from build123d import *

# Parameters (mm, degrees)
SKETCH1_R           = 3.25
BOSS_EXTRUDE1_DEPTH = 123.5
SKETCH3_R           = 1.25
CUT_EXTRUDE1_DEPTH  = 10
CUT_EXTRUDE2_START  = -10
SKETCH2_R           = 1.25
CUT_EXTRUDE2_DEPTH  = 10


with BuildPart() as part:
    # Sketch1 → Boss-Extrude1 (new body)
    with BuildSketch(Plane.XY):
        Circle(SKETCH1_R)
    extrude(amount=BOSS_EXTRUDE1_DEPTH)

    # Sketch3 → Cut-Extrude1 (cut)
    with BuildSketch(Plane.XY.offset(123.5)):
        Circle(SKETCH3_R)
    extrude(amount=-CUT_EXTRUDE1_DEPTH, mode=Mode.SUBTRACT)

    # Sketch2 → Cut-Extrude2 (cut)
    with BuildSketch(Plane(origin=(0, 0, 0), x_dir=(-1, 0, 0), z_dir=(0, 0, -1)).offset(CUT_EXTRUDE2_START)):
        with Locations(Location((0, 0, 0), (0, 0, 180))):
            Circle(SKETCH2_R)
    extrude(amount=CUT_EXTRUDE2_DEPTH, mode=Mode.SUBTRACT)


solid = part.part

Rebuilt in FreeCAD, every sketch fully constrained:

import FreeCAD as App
import Part
import Sketcher

doc = App.newDocument("Part")
body = doc.addObject("PartDesign::Body", "Body")

# Sketch on XY plane
sketch1 = doc.addObject("Sketcher::SketchObject", "Sketch")
body.addObject(sketch1)
sketch1.AttachmentSupport = (doc.XY_Plane, [""])
sketch1.MapMode = "FlatFace"
sketch1.addGeometry(Part.Circle(App.Vector(0, 0, 0), App.Vector(0, 0, 1), 3.2), False)
sketch1.addConstraint([
    Sketcher.Constraint("Coincident", 0, 3, -1, 1),
    Sketcher.Constraint("Diameter", 0, 6.5),
])
pad1 = doc.addObject("PartDesign::Pad", "Pad")
body.addObject(pad1)
pad1.Profile = sketch1
pad1.Length = 123.5

# Sketch on XY plane
sketch2 = doc.addObject("Sketcher::SketchObject", "Sketch001")
body.addObject(sketch2)
sketch2.AttachmentSupport = (doc.XY_Plane, [""])
sketch2.MapMode = "FlatFace"
sketch2.AttachmentOffset = App.Placement(App.Vector(0, 0, 123.5), App.Rotation())
sketch2.addGeometry(Part.Circle(App.Vector(0, 0, 0), App.Vector(0, 0, 1), 1.2), False)
sketch2.addConstraint([
    Sketcher.Constraint("Coincident", 0, 3, -1, 1),
    Sketcher.Constraint("Diameter", 0, 2.5),
])
pocket1 = doc.addObject("PartDesign::Pocket", "Pocket")
body.addObject(pocket1)
pocket1.Profile = sketch2
pocket1.Length = 10

# Sketch on XY plane
sketch3 = doc.addObject("Sketcher::SketchObject", "Sketch002")
body.addObject(sketch3)
sketch3.AttachmentSupport = (doc.XY_Plane, [""])
sketch3.MapMode = "FlatFace"
sketch3.AttachmentOffset = App.Placement(App.Vector(0, 0, 10), App.Rotation())
sketch3.addGeometry(Part.Circle(App.Vector(0, 0, 0), App.Vector(0, 0, 1), 1.2), False)
sketch3.addConstraint([
    Sketcher.Constraint("Coincident", 0, 3, -1, 1),
    Sketcher.Constraint("Diameter", 0, 2.5),
])
pocket2 = doc.addObject("PartDesign::Pocket", "Pocket001")
body.addObject(pocket2)
pocket2.Profile = sketch3
pocket2.Length = 10

doc.recompute()
